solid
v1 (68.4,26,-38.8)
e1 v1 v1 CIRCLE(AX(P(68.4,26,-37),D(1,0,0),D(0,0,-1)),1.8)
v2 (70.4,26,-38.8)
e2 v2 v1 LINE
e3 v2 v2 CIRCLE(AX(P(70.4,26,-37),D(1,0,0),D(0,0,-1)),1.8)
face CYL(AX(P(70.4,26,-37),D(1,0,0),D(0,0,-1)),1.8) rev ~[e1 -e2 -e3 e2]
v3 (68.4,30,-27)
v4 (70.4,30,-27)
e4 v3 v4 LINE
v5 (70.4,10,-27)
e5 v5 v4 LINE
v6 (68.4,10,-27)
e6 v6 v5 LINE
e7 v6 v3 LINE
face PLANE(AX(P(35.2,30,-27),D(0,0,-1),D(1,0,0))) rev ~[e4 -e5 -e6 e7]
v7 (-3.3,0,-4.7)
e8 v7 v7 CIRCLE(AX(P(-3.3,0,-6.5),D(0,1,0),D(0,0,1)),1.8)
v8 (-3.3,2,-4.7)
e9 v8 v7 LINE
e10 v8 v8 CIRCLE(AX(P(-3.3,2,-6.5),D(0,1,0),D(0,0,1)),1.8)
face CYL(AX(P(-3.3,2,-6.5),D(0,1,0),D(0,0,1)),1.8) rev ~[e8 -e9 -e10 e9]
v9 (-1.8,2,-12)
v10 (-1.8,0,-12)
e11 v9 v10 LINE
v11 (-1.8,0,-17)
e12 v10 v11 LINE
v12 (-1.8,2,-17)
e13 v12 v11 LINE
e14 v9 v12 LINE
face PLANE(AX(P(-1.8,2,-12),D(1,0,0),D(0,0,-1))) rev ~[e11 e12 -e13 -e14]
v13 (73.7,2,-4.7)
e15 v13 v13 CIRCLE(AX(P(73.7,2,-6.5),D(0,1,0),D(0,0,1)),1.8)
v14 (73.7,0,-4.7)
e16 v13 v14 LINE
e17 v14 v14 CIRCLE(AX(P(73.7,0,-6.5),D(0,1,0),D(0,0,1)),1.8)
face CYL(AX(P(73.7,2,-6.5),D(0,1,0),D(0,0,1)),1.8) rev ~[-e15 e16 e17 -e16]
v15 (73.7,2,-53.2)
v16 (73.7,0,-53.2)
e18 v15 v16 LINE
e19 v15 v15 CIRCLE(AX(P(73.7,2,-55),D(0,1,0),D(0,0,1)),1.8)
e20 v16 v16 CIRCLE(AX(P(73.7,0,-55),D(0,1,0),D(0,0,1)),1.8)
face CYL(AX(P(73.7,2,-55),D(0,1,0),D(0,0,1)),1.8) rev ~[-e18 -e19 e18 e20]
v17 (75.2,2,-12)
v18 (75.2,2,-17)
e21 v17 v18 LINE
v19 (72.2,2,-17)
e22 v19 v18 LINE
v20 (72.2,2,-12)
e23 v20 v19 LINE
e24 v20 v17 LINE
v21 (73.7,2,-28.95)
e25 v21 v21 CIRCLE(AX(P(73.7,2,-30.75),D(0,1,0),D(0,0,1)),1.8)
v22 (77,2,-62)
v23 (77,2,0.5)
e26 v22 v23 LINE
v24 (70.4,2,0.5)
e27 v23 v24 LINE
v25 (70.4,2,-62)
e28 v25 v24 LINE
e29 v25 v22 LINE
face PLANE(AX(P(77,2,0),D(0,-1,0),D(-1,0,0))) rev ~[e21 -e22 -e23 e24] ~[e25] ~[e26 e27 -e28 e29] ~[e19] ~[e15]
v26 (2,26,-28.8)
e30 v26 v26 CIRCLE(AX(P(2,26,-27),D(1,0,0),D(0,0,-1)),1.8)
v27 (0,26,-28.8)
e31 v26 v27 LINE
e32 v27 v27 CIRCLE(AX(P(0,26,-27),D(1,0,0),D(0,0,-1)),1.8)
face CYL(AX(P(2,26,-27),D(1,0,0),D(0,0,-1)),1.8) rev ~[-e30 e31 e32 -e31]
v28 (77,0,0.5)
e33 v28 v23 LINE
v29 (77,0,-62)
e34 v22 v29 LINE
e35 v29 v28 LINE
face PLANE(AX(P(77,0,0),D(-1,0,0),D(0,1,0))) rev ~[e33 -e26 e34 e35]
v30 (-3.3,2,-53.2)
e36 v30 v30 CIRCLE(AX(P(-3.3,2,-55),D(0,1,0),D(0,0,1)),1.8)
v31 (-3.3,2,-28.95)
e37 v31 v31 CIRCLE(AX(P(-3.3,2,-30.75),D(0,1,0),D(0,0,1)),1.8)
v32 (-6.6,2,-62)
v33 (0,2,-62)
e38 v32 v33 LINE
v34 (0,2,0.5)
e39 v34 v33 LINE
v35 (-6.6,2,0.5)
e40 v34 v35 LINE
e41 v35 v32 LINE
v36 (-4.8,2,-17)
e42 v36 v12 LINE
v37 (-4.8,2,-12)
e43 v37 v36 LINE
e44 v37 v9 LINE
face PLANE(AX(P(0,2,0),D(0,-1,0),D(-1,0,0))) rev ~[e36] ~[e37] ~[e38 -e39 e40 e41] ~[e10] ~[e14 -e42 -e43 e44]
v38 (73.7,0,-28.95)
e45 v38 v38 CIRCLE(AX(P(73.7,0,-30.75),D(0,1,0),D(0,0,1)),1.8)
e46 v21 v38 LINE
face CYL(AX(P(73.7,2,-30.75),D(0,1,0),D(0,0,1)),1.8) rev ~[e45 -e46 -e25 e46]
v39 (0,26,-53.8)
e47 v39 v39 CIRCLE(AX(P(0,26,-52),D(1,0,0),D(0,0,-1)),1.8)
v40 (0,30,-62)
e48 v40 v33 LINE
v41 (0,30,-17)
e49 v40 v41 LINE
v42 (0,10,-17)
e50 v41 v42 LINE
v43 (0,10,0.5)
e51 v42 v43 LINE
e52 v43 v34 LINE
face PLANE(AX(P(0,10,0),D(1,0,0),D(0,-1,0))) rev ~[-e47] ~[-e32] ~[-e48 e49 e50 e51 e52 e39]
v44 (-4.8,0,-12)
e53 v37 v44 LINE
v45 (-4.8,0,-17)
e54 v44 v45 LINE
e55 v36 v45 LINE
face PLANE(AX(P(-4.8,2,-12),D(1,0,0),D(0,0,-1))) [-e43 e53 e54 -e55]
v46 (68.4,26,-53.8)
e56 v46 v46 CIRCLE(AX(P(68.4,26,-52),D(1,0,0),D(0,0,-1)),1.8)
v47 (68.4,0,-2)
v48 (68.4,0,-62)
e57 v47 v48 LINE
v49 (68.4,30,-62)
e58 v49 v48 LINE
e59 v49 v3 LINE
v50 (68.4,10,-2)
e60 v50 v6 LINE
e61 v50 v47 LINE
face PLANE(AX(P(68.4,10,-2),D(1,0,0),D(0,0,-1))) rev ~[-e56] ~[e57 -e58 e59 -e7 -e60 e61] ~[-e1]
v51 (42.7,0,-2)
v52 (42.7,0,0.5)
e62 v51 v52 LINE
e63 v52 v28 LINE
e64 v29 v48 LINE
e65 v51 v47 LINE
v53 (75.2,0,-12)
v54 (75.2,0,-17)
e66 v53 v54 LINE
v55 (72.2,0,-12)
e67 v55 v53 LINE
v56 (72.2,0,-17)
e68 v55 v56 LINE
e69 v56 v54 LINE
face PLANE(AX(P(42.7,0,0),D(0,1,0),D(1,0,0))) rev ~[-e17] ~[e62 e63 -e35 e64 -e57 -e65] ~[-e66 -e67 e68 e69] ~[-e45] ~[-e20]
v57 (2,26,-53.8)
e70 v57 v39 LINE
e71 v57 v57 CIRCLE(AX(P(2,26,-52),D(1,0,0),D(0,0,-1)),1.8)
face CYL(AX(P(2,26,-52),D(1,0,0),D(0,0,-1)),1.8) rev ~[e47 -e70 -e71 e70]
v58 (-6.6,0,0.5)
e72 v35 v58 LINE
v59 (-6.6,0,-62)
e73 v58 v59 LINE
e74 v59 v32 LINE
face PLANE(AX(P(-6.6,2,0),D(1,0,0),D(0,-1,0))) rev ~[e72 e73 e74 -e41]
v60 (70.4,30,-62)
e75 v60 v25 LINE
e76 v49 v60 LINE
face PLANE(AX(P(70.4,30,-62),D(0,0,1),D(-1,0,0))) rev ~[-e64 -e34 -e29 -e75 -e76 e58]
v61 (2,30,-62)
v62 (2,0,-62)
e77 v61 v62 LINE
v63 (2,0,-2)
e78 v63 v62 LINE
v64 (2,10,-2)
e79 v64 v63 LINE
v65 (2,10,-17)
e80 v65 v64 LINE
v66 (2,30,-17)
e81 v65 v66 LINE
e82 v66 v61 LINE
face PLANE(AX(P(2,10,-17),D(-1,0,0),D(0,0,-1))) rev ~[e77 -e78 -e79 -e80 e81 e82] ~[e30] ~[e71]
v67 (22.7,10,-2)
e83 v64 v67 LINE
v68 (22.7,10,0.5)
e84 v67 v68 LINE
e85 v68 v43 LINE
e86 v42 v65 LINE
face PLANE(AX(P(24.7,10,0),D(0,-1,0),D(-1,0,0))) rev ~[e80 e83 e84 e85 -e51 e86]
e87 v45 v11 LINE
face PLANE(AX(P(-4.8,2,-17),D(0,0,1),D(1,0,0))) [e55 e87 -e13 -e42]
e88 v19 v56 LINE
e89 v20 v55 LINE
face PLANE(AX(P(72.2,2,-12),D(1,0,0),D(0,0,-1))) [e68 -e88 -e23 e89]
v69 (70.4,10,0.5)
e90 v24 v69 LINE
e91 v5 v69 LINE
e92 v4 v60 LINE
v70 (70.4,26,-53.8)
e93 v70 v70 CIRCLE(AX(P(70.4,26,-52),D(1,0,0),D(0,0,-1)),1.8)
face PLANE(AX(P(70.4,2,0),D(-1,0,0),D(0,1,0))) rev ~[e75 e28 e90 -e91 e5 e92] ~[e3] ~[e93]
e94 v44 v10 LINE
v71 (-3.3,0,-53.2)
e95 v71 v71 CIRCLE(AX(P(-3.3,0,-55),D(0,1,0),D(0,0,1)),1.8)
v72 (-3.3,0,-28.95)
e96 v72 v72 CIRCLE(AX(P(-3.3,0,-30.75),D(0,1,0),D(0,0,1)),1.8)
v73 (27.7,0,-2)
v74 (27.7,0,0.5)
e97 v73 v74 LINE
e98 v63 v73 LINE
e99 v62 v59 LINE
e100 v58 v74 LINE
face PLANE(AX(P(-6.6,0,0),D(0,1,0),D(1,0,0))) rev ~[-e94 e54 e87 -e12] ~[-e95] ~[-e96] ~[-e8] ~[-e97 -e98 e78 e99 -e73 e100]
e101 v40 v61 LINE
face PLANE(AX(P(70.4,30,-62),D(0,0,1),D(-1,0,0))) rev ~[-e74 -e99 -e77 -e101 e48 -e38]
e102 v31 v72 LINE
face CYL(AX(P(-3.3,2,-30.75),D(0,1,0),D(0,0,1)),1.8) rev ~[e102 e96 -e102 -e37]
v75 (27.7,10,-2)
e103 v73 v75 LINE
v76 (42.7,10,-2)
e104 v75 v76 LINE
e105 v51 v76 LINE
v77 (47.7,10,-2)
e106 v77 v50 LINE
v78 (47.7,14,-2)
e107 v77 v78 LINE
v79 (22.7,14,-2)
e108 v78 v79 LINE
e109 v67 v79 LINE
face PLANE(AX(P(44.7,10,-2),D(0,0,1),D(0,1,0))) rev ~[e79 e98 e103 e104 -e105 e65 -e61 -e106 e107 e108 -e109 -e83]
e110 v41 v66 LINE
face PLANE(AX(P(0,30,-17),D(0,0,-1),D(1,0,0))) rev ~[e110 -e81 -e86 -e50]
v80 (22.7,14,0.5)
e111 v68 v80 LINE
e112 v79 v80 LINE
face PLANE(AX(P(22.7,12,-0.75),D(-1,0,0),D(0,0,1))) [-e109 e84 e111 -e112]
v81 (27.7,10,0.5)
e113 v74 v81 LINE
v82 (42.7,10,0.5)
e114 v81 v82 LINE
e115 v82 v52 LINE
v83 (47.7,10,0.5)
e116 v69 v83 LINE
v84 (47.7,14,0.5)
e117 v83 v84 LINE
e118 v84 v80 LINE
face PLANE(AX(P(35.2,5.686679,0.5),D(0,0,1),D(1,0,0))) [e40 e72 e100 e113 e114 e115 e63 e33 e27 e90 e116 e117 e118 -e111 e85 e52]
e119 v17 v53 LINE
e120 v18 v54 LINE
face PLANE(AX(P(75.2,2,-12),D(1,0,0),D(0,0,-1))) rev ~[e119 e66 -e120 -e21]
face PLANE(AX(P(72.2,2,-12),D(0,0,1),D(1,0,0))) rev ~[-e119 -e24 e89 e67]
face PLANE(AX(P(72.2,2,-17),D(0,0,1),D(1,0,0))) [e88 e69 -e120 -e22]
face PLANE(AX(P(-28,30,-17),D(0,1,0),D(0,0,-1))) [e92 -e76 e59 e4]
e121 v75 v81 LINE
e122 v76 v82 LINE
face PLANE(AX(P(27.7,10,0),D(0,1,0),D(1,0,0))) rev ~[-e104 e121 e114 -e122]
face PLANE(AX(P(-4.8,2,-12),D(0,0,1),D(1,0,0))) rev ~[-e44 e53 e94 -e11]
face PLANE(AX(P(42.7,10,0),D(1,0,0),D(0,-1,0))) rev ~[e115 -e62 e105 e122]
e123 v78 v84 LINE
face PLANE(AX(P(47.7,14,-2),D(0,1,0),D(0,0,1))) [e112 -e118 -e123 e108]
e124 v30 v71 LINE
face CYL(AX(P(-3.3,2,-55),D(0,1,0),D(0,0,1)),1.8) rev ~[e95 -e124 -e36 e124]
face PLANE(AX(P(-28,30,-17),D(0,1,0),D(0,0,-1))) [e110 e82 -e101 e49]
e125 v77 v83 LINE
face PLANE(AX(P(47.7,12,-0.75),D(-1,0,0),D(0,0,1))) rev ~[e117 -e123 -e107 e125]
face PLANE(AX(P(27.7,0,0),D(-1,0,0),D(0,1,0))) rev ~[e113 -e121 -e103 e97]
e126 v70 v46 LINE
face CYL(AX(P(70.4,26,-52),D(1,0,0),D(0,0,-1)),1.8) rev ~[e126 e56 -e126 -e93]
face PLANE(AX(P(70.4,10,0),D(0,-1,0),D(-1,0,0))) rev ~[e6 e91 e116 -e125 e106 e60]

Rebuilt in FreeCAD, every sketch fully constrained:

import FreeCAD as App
import Part
import Sketcher

doc = App.newDocument("Part")
body = doc.addObject("PartDesign::Body", "Body")

# Sketch on XZ plane
sketch1 = body.newObject("Sketcher::SketchObject", "Sketch")
sketch1.AttachmentSupport = (doc.getObject("XZ_Plane"), [""])
sketch1.MapMode = "FlatFace"
sketch1.addGeometry([
    Part.LineSegment(App.Vector(0, -2, 0), App.Vector(0, 0, 0)),
    Part.LineSegment(App.Vector(0, 0, 0), App.Vector(70.4, 0, 0)),
    Part.LineSegment(App.Vector(70.4, 0, 0), App.Vector(70.4, -2, 0)),
    Part.LineSegment(App.Vector(70.4, -2, 0), App.Vector(0, -2, 0)),
], False)
sketch1.addConstraint([
    Sketcher.Constraint("Coincident", 0, 2, 1, 1),
    Sketcher.Constraint("Coincident", 1, 2, 2, 1),
    Sketcher.Constraint("Coincident", 2, 2, 3, 1),
    Sketcher.Constraint("Coincident", 3, 2, 0, 1),
    Sketcher.Constraint("Vertical", 0),
    Sketcher.Constraint("Horizontal", 1),
    Sketcher.Constraint("Vertical", 2),
    Sketcher.Constraint("Horizontal", 3),
    Sketcher.Constraint("Coincident", 0, 2, -1, 1),
    Sketcher.Constraint("DistanceY", 0, 1, 0, 2, 2.0),
    Sketcher.Constraint("DistanceX", 1, 1, 1, 2, 70.4),
])
pad1 = body.newObject("PartDesign::Pad", "Pad")
pad1.Profile = sketch1
pad1.Length = 10
pad1.Reversed = True

# Sketch on XZ plane
sketch2 = body.newObject("Sketcher::SketchObject", "Sketch001")
sketch2.AttachmentSupport = (doc.getObject("XZ_Plane"), [""])
sketch2.MapMode = "FlatFace"
sketch2.AttachmentOffset = App.Placement(App.Vector(0, 0, -10), App.Rotation())
sketch2.addGeometry([
    Part.LineSegment(App.Vector(0, -57, 0), App.Vector(0, -2, 0)),  # 0
    Part.LineSegment(App.Vector(0, -2, 0), App.Vector(2, -2, 0)),  # 1
    Part.LineSegment(App.Vector(2, -2, 0), App.Vector(2, -57, 0)),  # 2
    Part.LineSegment(App.Vector(2, -57, 0), App.Vector(0, -57, 0)),  # 3
    Part.LineSegment(App.Vector(68.4, -57, 0), App.Vector(68.4, -2, 0)),  # 4
    Part.LineSegment(App.Vector(68.4, -2, 0), App.Vector(70.4, -2, 0)),  # 5
    Part.LineSegment(App.Vector(70.4, -2, 0), App.Vector(70.4, -57, 0)),  # 6
    Part.LineSegment(App.Vector(70.4, -57, 0), App.Vector(68.4, -57, 0)),  # 7
], False)
sketch2.addConstraint([
    Sketcher.Constraint("Coincident", 0, 2, 1, 1),
    Sketcher.Constraint("Coincident", 1, 2, 2, 1),
    Sketcher.Constraint("Coincident", 2, 2, 3, 1),
    Sketcher.Constraint("Coincident", 3, 2, 0, 1),
    Sketcher.Constraint("Coincident", 4, 2, 5, 1),
    Sketcher.Constraint("Coincident", 5, 2, 6, 1),
    Sketcher.Constraint("Coincident", 6, 2, 7, 1),
    Sketcher.Constraint("Coincident", 7, 2, 4, 1),
    Sketcher.Constraint("Vertical", 0),
    Sketcher.Constraint("Horizontal", 1),
    Sketcher.Constraint("Vertical", 2),
    Sketcher.Constraint("Horizontal", 3),
    Sketcher.Constraint("Vertical", 4),
    Sketcher.Constraint("Horizontal", 5),
    Sketcher.Constraint("Vertical", 6),
    Sketcher.Constraint("Horizontal", 7),
    Sketcher.Constraint("PointOnObject", 0, 2, -2),
    Sketcher.Constraint("Horizontal", 1, 2, 4, 2),
    Sketcher.Constraint("Horizontal", 3, 2, 6, 2),
    Sketcher.Constraint("Equal", 3, 5),
    Sketcher.Constraint("DistanceX", 1, 1, 1, 2, 2.0),
    Sketcher.Constraint("DistanceY", 0, 1, 0, 2, 55.0),
    Sketcher.Constraint("DistanceY", 0, 2, -1, 1, 2.0),
    Sketcher.Constraint("DistanceX", -1, 1, 4, 2, 68.4),
])
pad2 = body.newObject("PartDesign::Pad", "Pad001")
pad2.Profile = sketch2
pad2.Length = 10

# Sketch on XY plane
sketch3 = body.newObject("Sketcher::SketchObject", "Sketch002")
sketch3.AttachmentSupport = (doc.getObject("XY_Plane"), [""])
sketch3.MapMode = "FlatFace"
sketch3.addGeometry([
    Part.LineSegment(App.Vector(25.7, 13, 0), App.Vector(25.7, 10, 0)),
    Part.LineSegment(App.Vector(25.7, 10, 0), App.Vector(44.7, 10, 0)),
    Part.LineSegment(App.Vector(44.7, 10, 0), App.Vector(44.7, 13, 0)),
    Part.LineSegment(App.Vector(44.7, 13, 0), App.Vector(25.7, 13, 0)),
], False)
sketch3.addConstraint([
    Sketcher.Constraint("Coincident", 0, 2, 1, 1),
    Sketcher.Constraint("Coincident", 1, 2, 2, 1),
    Sketcher.Constraint("Coincident", 2, 2, 3, 1),
    Sketcher.Constraint("Coincident", 3, 2, 0, 1),
    Sketcher.Constraint("Vertical", 0),
    Sketcher.Constraint("Horizontal", 1),
    Sketcher.Constraint("Vertical", 2),
    Sketcher.Constraint("Horizontal", 3),
    Sketcher.Constraint("DistanceX", 1, 1, 1, 2, 19.0),
    Sketcher.Constraint("DistanceY", 0, 2, 0, 1, 3.0),
    Sketcher.Constraint("DistanceY", -1, 1, 0, 2, 10.0),
    Sketcher.Constraint("DistanceX", -1, 1, 0, 2, 25.7),
])
pad3 = body.newObject("PartDesign::Pad", "Pad002")
pad3.Profile = sketch3
pad3.Length = 2
pad3.Reversed = True

# Sketch on XY plane
sketch4 = body.newObject("Sketcher::SketchObject", "Sketch003")
sketch4.AttachmentSupport = (doc.getObject("XY_Plane"), [""])
sketch4.MapMode = "FlatFace"
sketch4.addGeometry([
    Part.LineSegment(App.Vector(28, 10, 0), App.Vector(28, 0, 0)),
    Part.LineSegment(App.Vector(28, 0, 0), App.Vector(43, 0, 0)),
    Part.LineSegment(App.Vector(43, 0, 0), App.Vector(43, 10, 0)),
    Part.LineSegment(App.Vector(43, 10, 0), App.Vector(28, 10, 0)),
], False)
sketch4.addConstraint([
    Sketcher.Constraint("Coincident", 0, 2, 1, 1),
    Sketcher.Constraint("Coincident", 1, 2, 2, 1),
    Sketcher.Constraint("Coincident", 2, 2, 3, 1),
    Sketcher.Constraint("Coincident", 3, 2, 0, 1),
    Sketcher.Constraint("Vertical", 0),
    Sketcher.Constraint("Horizontal", 1),
    Sketcher.Constraint("Vertical", 2),
    Sketcher.Constraint("Horizontal", 3),
    Sketcher.Constraint("PointOnObject", 0, 2, -1),
    Sketcher.Constraint("DistanceX", 1, 1, 1, 2, 15.0),
    Sketcher.Constraint("DistanceY", 0, 2, 0, 1, 10.0),
    Sketcher.Constraint("DistanceX", -1, 1, 0, 2, 27.7),
])
pocket1 = body.newObject("PartDesign::Pocket", "Pocket")
pocket1.Profile = sketch4
pocket1.Length = 2

# Sketch on YZ plane
sketch5 = body.newObject("Sketcher::SketchObject", "Sketch004")
sketch5.AttachmentSupport = (doc.getObject("YZ_Plane"), [""])
sketch5.MapMode = "FlatFace"
sketch5.AttachmentOffset = App.Placement(App.Vector(0, 0, 25.7), App.Rotation())
sketch5.addGeometry([
    Part.LineSegment(App.Vector(13, -2, 0), App.Vector(10, -2, 0)),
    Part.LineSegment(App.Vector(10, -2, 0), App.Vector(10, 0, 0)),
    Part.LineSegment(App.Vector(10, 0, 0), App.Vector(13, 0, 0)),
    Part.LineSegment(App.Vector(13, 0, 0), App.Vector(13, -2, 0)),
], False)
sketch5.addConstraint([
    Sketcher.Constraint("Coincident", 0, 2, 1, 1),
    Sketcher.Constraint("Coincident", 1, 2, 2, 1),
    Sketcher.Constraint("Coincident", 2, 2, 3, 1),
    Sketcher.Constraint("Coincident", 3, 2, 0, 1),
    Sketcher.Constraint("Horizontal", 0),
    Sketcher.Constraint("Vertical", 1),
    Sketcher.Constraint("Horizontal", 2),
    Sketcher.Constraint("Vertical", 3),
    Sketcher.Constraint("PointOnObject", 1, 2, -1),
    Sketcher.Constraint("DistanceX", 0, 2, 0, 1, 3.0),
    Sketcher.Constraint("DistanceY", 1, 1, 1, 2, 2.0),
    Sketcher.Constraint("DistanceX", -1, 1, 0, 2, 10.0),
])
pad4 = body.newObject("PartDesign::Pad", "Pad003")
pad4.Profile = sketch5
pad4.Length = 1
pad4.Reversed = True

# Sketch on YZ plane
sketch6 = body.newObject("Sketcher::SketchObject", "Sketch005")
sketch6.AttachmentSupport = (doc.getObject("YZ_Plane"), [""])
sketch6.MapMode = "FlatFace"
sketch6.AttachmentOffset = App.Placement(App.Vector(0, 0, 44.7), App.Rotation())
sketch6.addGeometry([
    Part.LineSegment(App.Vector(13, 0, 0), App.Vector(10, 0, 0)),
    Part.LineSegment(App.Vector(10, 0, 0), App.Vector(10, -2, 0)),
    Part.LineSegment(App.Vector(10, -2, 0), App.Vector(13, -2, 0)),
    Part.LineSegment(App.Vector(13, -2, 0), App.Vector(13, 0, 0)),
], False)
sketch6.addConstraint([
    Sketcher.Constraint("Coincident", 0, 2, 1, 1),
    Sketcher.Constraint("Coincident", 1, 2, 2, 1),
    Sketcher.Constraint("Coincident", 2, 2, 3, 1),
    Sketcher.Constraint("Coincident", 3, 2, 0, 1),
    Sketcher.Constraint("Horizontal", 0),
    Sketcher.Constraint("Vertical", 1),
    Sketcher.Constraint("Horizontal", 2),
    Sketcher.Constraint("Vertical", 3),
    Sketcher.Constraint("PointOnObject", 0, 2, -1),
    Sketcher.Constraint("DistanceX", 0, 2, 0, 1, 3.0),
    Sketcher.Constraint("DistanceY", 1, 2, 1, 1, 2.0),
    Sketcher.Constraint("DistanceX", -1, 1, 0, 2, 10.0),
])
pad5 = body.newObject("PartDesign::Pad", "Pad004")
pad5.Profile = sketch6
pad5.Length = 1

# Sketch on YZ plane
sketch7 = body.newObject("Sketcher::SketchObject", "Sketch006")
sketch7.AttachmentSupport = (doc.getObject("YZ_Plane"), [""])
sketch7.MapMode = "FlatFace"
sketch7.addGeometry([
    Part.LineSegment(App.Vector(2, -57, 0), App.Vector(0, -57, 0)),
    Part.LineSegment(App.Vector(0, -57, 0), App.Vector(0, 0, 0)),
    Part.LineSegment(App.Vector(0, 0, 0), App.Vector(2, 0, 0)),
    Part.LineSegment(App.Vector(2, 0, 0), App.Vector(2, -57, 0)),
], False)
sketch7.addConstraint([
    Sketcher.Constraint("Coincident", 0, 2, 1, 1),
    Sketcher.Constraint("Coincident", 1, 2, 2, 1),
    Sketcher.Constraint("Coincident", 2, 2, 3, 1),
    Sketcher.Constraint("Coincident", 3, 2, 0, 1),
    Sketcher.Constraint("Horizontal", 0),
    Sketcher.Constraint("Vertical", 1),
    Sketcher.Constraint("Horizontal", 2),
    Sketcher.Constraint("Vertical", 3),
    Sketcher.Constraint("Coincident", 1, 2, -1, 1),
    Sketcher.Constraint("DistanceX", 0, 2, 0, 1, 2.0),
    Sketcher.Constraint("DistanceY", 1, 1, 1, 2, 57.0),
])
pad6 = body.newObject("PartDesign::Pad", "Pad005")
pad6.Profile = sketch7
pad6.Length = 6.6
pad6.Reversed = True

# Sketch on YZ plane
sketch8 = body.newObject("Sketcher::SketchObject", "Sketch007")
sketch8.AttachmentSupport = (doc.getObject("YZ_Plane"), [""])
sketch8.MapMode = "FlatFace"
sketch8.AttachmentOffset = App.Placement(App.Vector(0, 0, 70.4), App.Rotation())
sketch8.addGeometry([
    Part.LineSegment(App.Vector(2, 0, 0), App.Vector(0, 0, 0)),
    Part.LineSegment(App.Vector(0, 0, 0), App.Vector(0, -57, 0)),
    Part.LineSegment(App.Vector(0, -57, 0), App.Vector(2, -57, 0)),
    Part.LineSegment(App.Vector(2, -57, 0), App.Vector(2, 0, 0)),
], False)
sketch8.addConstraint([
    Sketcher.Constraint("Coincident", 0, 2, 1, 1),
    Sketcher.Constraint("Coincident", 1, 2, 2, 1),
    Sketcher.Constraint("Coincident", 2, 2, 3, 1),
    Sketcher.Constraint("Coincident", 3, 2, 0, 1),
    Sketcher.Constraint("Horizontal", 0),
    Sketcher.Constraint("Vertical", 1),
    Sketcher.Constraint("Horizontal", 2),
    Sketcher.Constraint("Vertical", 3),
    Sketcher.Constraint("Coincident", 0, 2, -1, 1),
    Sketcher.Constraint("DistanceX", 0, 2, 0, 1, 2.0),
    Sketcher.Constraint("DistanceY", 1, 2, 1, 1, 57.0),
])
pad7 = body.newObject("PartDesign::Pad", "Pad006")
pad7.Profile = sketch8
pad7.Length = 6.6

# Sketch on XY plane
sketch9 = body.newObject("Sketcher::SketchObject", "Sketch008")
sketch9.AttachmentSupport = (doc.getObject("XY_Plane"), [""])
sketch9.MapMode = "FlatFace"
sketch9.AttachmentOffset = App.Placement(App.Vector(0, 0, -57), App.Rotation())
sketch9.addGeometry([
    Part.LineSegment(App.Vector(2, 10, 0), App.Vector(2, 0, 0)),  # 0
    Part.LineSegment(App.Vector(2, 0, 0), App.Vector(-6.6, 0, 0)),  # 1
    Part.LineSegment(App.Vector(-6.6, 0, 0), App.Vector(-6.6, 2, 0)),  # 2
    Part.LineSegment(App.Vector(-6.6, 2, 0), App.Vector(0, 2, 0)),  # 3
    Part.LineSegment(App.Vector(0, 2, 0), App.Vector(0, 10, 0)),  # 4
    Part.LineSegment(App.Vector(0, 10, 0), App.Vector(2, 10, 0)),  # 5
    Part.LineSegment(App.Vector(77, 0, 0), App.Vector(68.4, 0, 0)),  # 6
    Part.LineSegment(App.Vector(68.4, 0, 0), App.Vector(68.4, 10, 0)),  # 7
    Part.LineSegment(App.Vector(68.4, 10, 0), App.Vector(70.4, 10, 0)),  # 8
    Part.LineSegment(App.Vector(70.4, 10, 0), App.Vector(70.4, 2, 0)),  # 9
    Part.LineSegment(App.Vector(70.4, 2, 0), App.Vector(77, 2, 0)),  # 10
    Part.LineSegment(App.Vector(77, 2, 0), App.Vector(77, 0, 0)),  # 11
], False)
sketch9.addConstraint([
    Sketcher.Constraint("Coincident", 0, 2, 1, 1),
    Sketcher.Constraint("Coincident", 1, 2, 2, 1),
    Sketcher.Constraint("Coincident", 2, 2, 3, 1),
    Sketcher.Constraint("Coincident", 3, 2, 4, 1),
    Sketcher.Constraint("Coincident", 4, 2, 5, 1),
    Sketcher.Constraint("Coincident", 5, 2, 0, 1),
    Sketcher.Constraint("Coincident", 6, 2, 7, 1),
    Sketcher.Constraint("Coincident", 7, 2, 8, 1),
    Sketcher.Constraint("Coincident", 8, 2, 9, 1),
    Sketcher.Constraint("Coincident", 9, 2, 10, 1),
    Sketcher.Constraint("Coincident", 10, 2, 11, 1),
    Sketcher.Constraint("Coincident", 11, 2, 6, 1),
    Sketcher.Constraint("Vertical", 0),
    Sketcher.Constraint("Horizontal", 1),
    Sketcher.Constraint("Vertical", 2),
    Sketcher.Constraint("Horizontal", 3),
    Sketcher.Constraint("Vertical", 4),
    Sketcher.Constraint("Horizontal", 5),
    Sketcher.Constraint("Horizontal", 6),
    Sketcher.Constraint("Vertical", 7),
    Sketcher.Constraint("Horizontal", 8),
    Sketcher.Constraint("Vertical", 9),
    Sketcher.Constraint("Horizontal", 10),
    Sketcher.Constraint("Vertical", 11),
    Sketcher.Constraint("PointOnObject", 0, 2, -1),
    Sketcher.Constraint("PointOnObject", 3, 2, -2),
    Sketcher.Constraint("PointOnObject", 6, 2, -1),
    Sketcher.Constraint("Horizontal", 5, 2, 7, 2),
    Sketcher.Constraint("Horizontal", 3, 2, 9, 2),
    Sketcher.Constraint("Equal", 1, 6),
    Sketcher.Constraint("Equal", 5, 8),
    Sketcher.Constraint("Equal", 8, 2),
    Sketcher.Constraint("DistanceX", 5, 1, 5, 2, 2.0),
    Sketcher.Constraint("DistanceY", 0, 2, 0, 1, 10.0),
    Sketcher.Constraint("DistanceX", 1, 2, 1, 1, 8.6),
    Sketcher.Constraint("DistanceX", -1, 1, 10, 2, 77.0),
])
pad8 = body.newObject("PartDesign::Pad", "Pad007")
pad8.Profile = sketch9
pad8.Length = 5
pad8.Reversed = True

# Sketch on XZ plane
sketch10 = body.newObject("Sketcher::SketchObject", "Sketch009")
sketch10.AttachmentSupport = (doc.getObject("XZ_Plane"), [""])
sketch10.MapMode = "FlatFace"
sketch10.AttachmentOffset = App.Placement(App.Vector(0, 0, -10), App.Rotation())
sketch10.addGeometry([
    Part.LineSegment(App.Vector(0, -62, 0), App.Vector(0, -17, 0)),  # 0
    Part.LineSegment(App.Vector(0, -17, 0), App.Vector(2, -17, 0)),  # 1
    Part.LineSegment(App.Vector(2, -17, 0), App.Vector(2, -62, 0)),  # 2
    Part.LineSegment(App.Vector(2, -62, 0), App.Vector(0, -62, 0)),  # 3
    Part.LineSegment(App.Vector(68.4, -27, 0), App.Vector(70.4, -27, 0)),  # 4
    Part.LineSegment(App.Vector(70.4, -27, 0), App.Vector(70.4, -62, 0)),  # 5
    Part.LineSegment(App.Vector(70.4, -62, 0), App.Vector(68.4, -62, 0)),  # 6
    Part.LineSegment(App.Vector(68.4, -62, 0), App.Vector(68.4, -27, 0)),  # 7
], False)
sketch10.addConstraint([
    Sketcher.Constraint("Coincident", 0, 2, 1, 1),
    Sketcher.Constraint("Coincident", 1, 2, 2, 1),
    Sketcher.Constraint("Coincident", 2, 2, 3, 1),
    Sketcher.Constraint("Coincident", 3, 2, 0, 1),
    Sketcher.Constraint("Coincident", 4, 2, 5, 1),
    Sketcher.Constraint("Coincident", 5, 2, 6, 1),
    Sketcher.Constraint("Coincident", 6, 2, 7, 1),
    Sketcher.Constraint("Coincident", 7, 2, 4, 1),
    Sketcher.Constraint("Vertical", 0),
    Sketcher.Constraint("Horizontal", 1),
    Sketcher.Constraint("Vertical", 2),
    Sketcher.Constraint("Horizontal", 3),
    Sketcher.Constraint("Horizontal", 4),
    Sketcher.Constraint("Vertical", 5),
    Sketcher.Constraint("Horizontal", 6),
    Sketcher.Constraint("Vertical", 7),
    Sketcher.Constraint("PointOnObject", 0, 2, -2),
    Sketcher.Constraint("Horizontal", 3, 2, 5, 2),
    Sketcher.Constraint("Equal", 3, 4),
    Sketcher.Constraint("DistanceX", 1, 1, 1, 2, 2.0),
    Sketcher.Constraint("DistanceY", 0, 1, 0, 2, 45.0),
    Sketcher.Constraint("DistanceY", 5, 2, 5, 1, 35.0),
    Sketcher.Constraint("DistanceY", 0, 2, -1, 1, 17.0),
    Sketcher.Constraint("DistanceX", -1, 1, 4, 2, 70.4),
])
pad9 = body.newObject("PartDesign::Pad", "Pad008")
pad9.Profile = sketch10
pad9.Length = 20
pad9.Reversed = True

# Sketch on XZ plane
sketch11 = body.newObject("Sketcher::SketchObject", "Sketch010")
sketch11.AttachmentSupport = (doc.getObject("XZ_Plane"), [""])
sketch11.MapMode = "FlatFace"
sketch11.AttachmentOffset = App.Placement(App.Vector(0, 0, -30), App.Rotation())
sketch11.addGeometry([
    Part.LineSegment(App.Vector(0, -17, 0), App.Vector(35, -17, 0)),  # 0
    Part.LineSegment(App.Vector(35, -17, 0), App.Vector(35, -27, 0)),  # 1
    Part.LineSegment(App.Vector(35, -27, 0), App.Vector(70, -27, 0)),  # 2
    Part.LineSegment(App.Vector(70, -27, 0), App.Vector(70, -62, 0)),  # 3
    Part.LineSegment(App.Vector(70, -62, 0), App.Vector(0, -62, 0)),  # 4
    Part.LineSegment(App.Vector(0, -62, 0), App.Vector(0, -17, 0)),  # 5
], False)
sketch11.addConstraint([
    Sketcher.Constraint("Coincident", 0, 2, 1, 1),
    Sketcher.Constraint("Coincident", 1, 2, 2, 1),
    Sketcher.Constraint("Coincident", 2, 2, 3, 1),
    Sketcher.Constraint("Coincident", 3, 2, 4, 1),
    Sketcher.Constraint("Coincident", 4, 2, 5, 1),
    Sketcher.Constraint("Coincident", 5, 2, 0, 1),
    Sketcher.Constraint("Horizontal", 0),
    Sketcher.Constraint("Vertical", 1),
    Sketcher.Constraint("Horizontal", 2),
    Sketcher.Constraint("Vertical", 3),
    Sketcher.Constraint("Horizontal", 4),
    Sketcher.Constraint("Vertical", 5),
    Sketcher.Constraint("PointOnObject", 4, 2, -2),
    Sketcher.Constraint("Equal", 0, 2),
    Sketcher.Constraint("DistanceY", 1, 2, 1, 1, 10.0),
    Sketcher.Constraint("DistanceY", 3, 2, 3, 1, 35.0),
    Sketcher.Constraint("DistanceX", 0, 1, 0, 2, 35.2),
    Sketcher.Constraint("DistanceY", 0, 2, -1, 1, 17.0),
])
pad10 = body.newObject("PartDesign::Pad", "Pad009")
pad10.Profile = sketch11
pad10.Length = 3
pad10.Reversed = True

# Sketch on XZ plane
sketch12 = body.newObject("Sketcher::SketchObject", "Sketch011")
sketch12.AttachmentSupport = (doc.getObject("XZ_Plane"), [""])
sketch12.MapMode = "FlatFace"
sketch12.AttachmentOffset = App.Placement(App.Vector(0, 0, -33), App.Rotation())
sketch12.addGeometry([
    Part.LineSegment(App.Vector(11.4, -55.5, 0), App.Vector(11.4, -46.5, 0)),  # 0
    Part.LineSegment(App.Vector(11.4, -46.5, 0), App.Vector(11.9, -46.5, 0)),  # 1
    Part.LineSegment(App.Vector(11.9, -46.5, 0), App.Vector(11.9, -55.5, 0)),  # 2
    Part.LineSegment(App.Vector(11.9, -55.5, 0), App.Vector(11.4, -55.5, 0)),  # 3
    Part.LineSegment(App.Vector(11.4, -42.5, 0), App.Vector(11.4, -33.5, 0)),  # 4
    Part.LineSegment(App.Vector(11.4, -33.5, 0), App.Vector(11.9, -33.5, 0)),  # 5
    Part.LineSegment(App.Vector(11.9, -33.5, 0), App.Vector(11.9, -42.5, 0)),  # 6
    Part.LineSegment(App.Vector(11.9, -42.5, 0), App.Vector(11.4, -42.5, 0)),  # 7
    Part.LineSegment(App.Vector(11.4, -30, 0), App.Vector(11.4, -21, 0)),  # 8
    Part.LineSegment(App.Vector(11.4, -21, 0), App.Vector(11.9, -21, 0)),  # 9
    Part.LineSegment(App.Vector(11.9, -21, 0), App.Vector(11.9, -30, 0)),  # 10
    Part.LineSegment(App.Vector(11.9, -30, 0), App.Vector(11.4, -30, 0)),  # 11
    Part.LineSegment(App.Vector(58, -55.5, 0), App.Vector(58, -46.5, 0)),  # 12
    Part.LineSegment(App.Vector(58, -46.5, 0), App.Vector(58.5, -46.5, 0)),  # 13
    Part.LineSegment(App.Vector(58.5, -46.5, 0), App.Vector(58.5, -55.5, 0)),  # 14
    Part.LineSegment(App.Vector(58.5, -55.5, 0), App.Vector(58, -55.5, 0)),  # 15
    Part.LineSegment(App.Vector(58, -42.5, 0), App.Vector(58, -33.5, 0)),  # 16
    Part.LineSegment(App.Vector(58, -33.5, 0), App.Vector(58.5, -33.5, 0)),  # 17
    Part.LineSegment(App.Vector(58.5, -33.5, 0), App.Vector(58.5, -42.5, 0)),  # 18
    Part.LineSegment(App.Vector(58.5, -42.5, 0), App.Vector(58, -42.5, 0)),  # 19
], False)
sketch12.addConstraint([
    Sketcher.Constraint("Coincident", 0, 2, 1, 1),
    Sketcher.Constraint("Coincident", 1, 2, 2, 1),
    Sketcher.Constraint("Coincident", 2, 2, 3, 1),
    Sketcher.Constraint("Coincident", 3, 2, 0, 1),
    Sketcher.Constraint("Coincident", 4, 2, 5, 1),
    Sketcher.Constraint("Coincident", 5, 2, 6, 1),
    Sketcher.Constraint("Coincident", 6, 2, 7, 1),
    Sketcher.Constraint("Coincident", 7, 2, 4, 1),
    Sketcher.Constraint("Coincident", 8, 2, 9, 1),
    Sketcher.Constraint("Coincident", 9, 2, 10, 1),
    Sketcher.Constraint("Coincident", 10, 2, 11, 1),
    Sketcher.Constraint("Coincident", 11, 2, 8, 1),
    Sketcher.Constraint("Coincident", 12, 2, 13, 1),
    Sketcher.Constraint("Coincident", 13, 2, 14, 1),
    Sketcher.Constraint("Coincident", 14, 2, 15, 1),
    Sketcher.Constraint("Coincident", 15, 2, 12, 1),
    Sketcher.Constraint("Coincident", 16, 2, 17, 1),
    Sketcher.Constraint("Coincident", 17, 2, 18, 1),
    Sketcher.Constraint("Coincident", 18, 2, 19, 1),
    Sketcher.Constraint("Coincident", 19, 2, 16, 1),
    Sketcher.Constraint("Vertical", 0),
    Sketcher.Constraint("Horizontal", 1),
    Sketcher.Constraint("Vertical", 2),
    Sketcher.Constraint("Horizontal", 3),
    Sketcher.Constraint("Vertical", 4),
    Sketcher.Constraint("Horizontal", 5),
    Sketcher.Constraint("Vertical", 6),
    Sketcher.Constraint("Horizontal", 7),
    Sketcher.Constraint("Vertical", 8),
    Sketcher.Constraint("Horizontal", 9),
    Sketcher.Constraint("Vertical", 10),
    Sketcher.Constraint("Horizontal", 11),
    Sketcher.Constraint("Vertical", 12),
    Sketcher.Constraint("Horizontal", 13),
    Sketcher.Constraint("Vertical", 14),
    Sketcher.Constraint("Horizontal", 15),
    Sketcher.Constraint("Vertical", 16),
    Sketcher.Constraint("Horizontal", 17),
    Sketcher.Constraint("Vertical", 18),
    Sketcher.Constraint("Horizontal", 19),
    Sketcher.Constraint("Horizontal", 1, 2, 12, 2),
    Sketcher.Constraint("Horizontal", 3, 2, 14, 2),
    Sketcher.Constraint("Horizontal", 5, 2, 16, 2),
    Sketcher.Constraint("Horizontal", 7, 2, 18, 2),
    Sketcher.Constraint("Vertical", 3, 2, 4, 2),
    Sketcher.Constraint("Vertical", 2, 2, 5, 2),
    Sketcher.Constraint("Vertical", 7, 2, 8, 2),
    Sketcher.Constraint("Vertical", 6, 2, 9, 2),
    Sketcher.Constraint("Vertical", 15, 2, 16, 2),
    Sketcher.Constraint("Vertical", 14, 2, 17, 2),
    Sketcher.Constraint("Equal", 11, 13),
    Sketcher.Constraint("Equal", 2, 4),
    Sketcher.Constraint("Equal", 6, 8),
    Sketcher.Constraint("DistanceY", 0, 1, 0, 2, 9.0),
    Sketcher.Constraint("DistanceX", 1, 1, 1, 2, 0.5),
    Sketcher.Constraint("DistanceY", 8, 2, -1, 1, 21.0),
    Sketcher.Constraint("DistanceY", 0, 2, 4, 2, 13.0),
    Sketcher.Constraint("DistanceX", 1, 2, 12, 2, 46.0),
    Sketcher.Constraint("DistanceY", 0, 2, -1, 1, 46.5),
    Sketcher.Constraint("DistanceX", -1, 1, 0, 2, 11.45),
])
pocket2 = body.newObject("PartDesign::Pocket", "Pocket001")
pocket2.Profile = sketch12
pocket2.Length = 3
pocket2.Reversed = True

# Sketch on XZ plane
sketch13 = body.newObject("Sketcher::SketchObject", "Sketch012")
sketch13.AttachmentSupport = (doc.getObject("XZ_Plane"), [""])
sketch13.MapMode = "FlatFace"
sketch13.AttachmentOffset = App.Placement(App.Vector(0, 0, -33), App.Rotation())
sketch13.addGeometry([
    Part.LineSegment(App.Vector(16, -62, 0), App.Vector(16, -17, 0)),
    Part.LineSegment(App.Vector(16, -17, 0), App.Vector(54, -17, 0)),
    Part.LineSegment(App.Vector(54, -17, 0), App.Vector(54, -62, 0)),
    Part.LineSegment(App.Vector(54, -62, 0), App.Vector(16, -62, 0)),
], False)
sketch13.addConstraint([
    Sketcher.Constraint("Coincident", 0, 2, 1, 1),
    Sketcher.Constraint("Coincident", 1, 2, 2, 1),
    Sketcher.Constraint("Coincident", 2, 2, 3, 1),
    Sketcher.Constraint("Coincident", 3, 2, 0, 1),
    Sketcher.Constraint("Vertical", 0),
    Sketcher.Constraint("Horizontal", 1),
    Sketcher.Constraint("Vertical", 2),
    Sketcher.Constraint("Horizontal", 3),
    Sketcher.Constraint("DistanceY", 0, 1, 0, 2, 45.0),
    Sketcher.Constraint("DistanceX", 1, 1, 1, 2, 38.4),
    Sketcher.Constraint("DistanceX", -1, 1, 0, 2, 16.0),
    Sketcher.Constraint("DistanceY", 0, 2, -1, 1, 17.0),
])
pocket3 = body.newObject("PartDesign::Pocket", "Pocket002")
pocket3.Profile = sketch13
pocket3.Length = 3
pocket3.Reversed = True

# Sketch on XY plane
sketch14 = body.newObject("Sketcher::SketchObject", "Sketch013")
sketch14.AttachmentSupport = (doc.getObject("XY_Plane"), [""])
sketch14.MapMode = "FlatFace"
sketch14.addGeometry([
    Part.LineSegment(App.Vector(-6.6, 0, 0), App.Vector(27.7, 0, 0)),  # 0
    Part.LineSegment(App.Vector(27.7, 0, 0), App.Vector(27.7, 10, 0)),  # 1
    Part.LineSegment(App.Vector(27.7, 10, 0), App.Vector(42.7, 10, 0)),  # 2
    Part.LineSegment(App.Vector(42.7, 10, 0), App.Vector(42.7, 0, 0)),  # 3
    Part.LineSegment(App.Vector(42.7, 0, 0), App.Vector(77, 0, 0)),  # 4
    Part.LineSegment(App.Vector(77, 0, 0), App.Vector(77, 2, 0)),  # 5
    Part.LineSegment(App.Vector(77, 2, 0), App.Vector(70.4, 2, 0)),  # 6
    Part.LineSegment(App.Vector(70.4, 2, 0), App.Vector(70.4, 10, 0)),  # 7
    Part.LineSegment(App.Vector(70.4, 10, 0), App.Vector(45.7, 10, 0)),  # 8
    Part.LineSegment(App.Vector(45.7, 10, 0), App.Vector(45.7, 13, 0)),  # 9
    Part.LineSegment(App.Vector(45.7, 13, 0), App.Vector(24.7, 13, 0)),  # 10
    Part.LineSegment(App.Vector(24.7, 13, 0), App.Vector(24.7, 10, 0)),  # 11
    Part.LineSegment(App.Vector(24.7, 10, 0), App.Vector(0, 10, 0)),  # 12
    Part.LineSegment(App.Vector(0, 10, 0), App.Vector(0, 2, 0)),  # 13
    Part.LineSegment(App.Vector(0, 2, 0), App.Vector(-6.6, 2, 0)),  # 14
    Part.LineSegment(App.Vector(-6.6, 2, 0), App.Vector(-6.6, 0, 0)),  # 15
], False)
sketch14.addConstraint([
    Sketcher.Constraint("Coincident", 0, 2, 1, 1),
    Sketcher.Constraint("Coincident", 1, 2, 2, 1),
    Sketcher.Constraint("Coincident", 2, 2, 3, 1),
    Sketcher.Constraint("Coincident", 3, 2, 4, 1),
    Sketcher.Constraint("Coincident", 4, 2, 5, 1),
    Sketcher.Constraint("Coincident", 5, 2, 6, 1),
    Sketcher.Constraint("Coincident", 6, 2, 7, 1),
    Sketcher.Constraint("Coincident", 7, 2, 8, 1),
    Sketcher.Constraint("Coincident", 8, 2, 9, 1),
    Sketcher.Constraint("Coincident", 9, 2, 10, 1),
    Sketcher.Constraint("Coincident", 10, 2, 11, 1),
    Sketcher.Constraint("Coincident", 11, 2, 12, 1),
    Sketcher.Constraint("Coincident", 12, 2, 13, 1),
    Sketcher.Constraint("Coincident", 13, 2, 14, 1),
    Sketcher.Constraint("Coincident", 14, 2, 15, 1),
    Sketcher.Constraint("Coincident", 15, 2, 0, 1),
    Sketcher.Constraint("Horizontal", 0),
    Sketcher.Constraint("Vertical", 1),
    Sketcher.Constraint("Horizontal", 2),
    Sketcher.Constraint("Vertical", 3),
    Sketcher.Constraint("Horizontal", 4),
    Sketcher.Constraint("Vertical", 5),
    Sketcher.Constraint("Horizontal", 6),
    Sketcher.Constraint("Vertical", 7),
    Sketcher.Constraint("Horizontal", 8),
    Sketcher.Constraint("Vertical", 9),
    Sketcher.Constraint("Horizontal", 10),
    Sketcher.Constraint("Vertical", 11),
    Sketcher.Constraint("Horizontal", 12),
    Sketcher.Constraint("Vertical", 13),
    Sketcher.Constraint("Horizontal", 14),
    Sketcher.Constraint("Vertical", 15),
    Sketcher.Constraint("PointOnObject", 0, 2, -1),
    Sketcher.Constraint("PointOnObject", 3, 2, -1),
    Sketcher.Constraint("PointOnObject", 12, 2, -2),
    Sketcher.Constraint("Horizontal", 2, 2, 7, 2),
    Sketcher.Constraint("Horizontal", 8, 2, 11, 2),
    Sketcher.Constraint("Horizontal", 6, 2, 13, 2),
    Sketcher.Constraint("Equal", 0, 4),
    Sketcher.Constraint("Equal", 8, 12),
    Sketcher.Constraint("Equal", 6, 14),
    Sketcher.Constraint("DistanceX", 2, 1, 2, 2, 15.0),
    Sketcher.Constraint("DistanceX", 10, 2, 10, 1, 21.0),
    Sketcher.Constraint("DistanceY", 1, 1, 1, 2, 10.0),
    Sketcher.Constraint("DistanceY", 5, 1, 5, 2, 2.0),
    Sketcher.Constraint("DistanceY", 9, 1, 9, 2, 3.0),
    Sketcher.Constraint("DistanceX", 0, 1, 0, 2, 34.3),
    Sketcher.Constraint("DistanceX", 6, 2, 6, 1, 6.6),
])
pad11 = body.newObject("PartDesign::Pad", "Pad010")
pad11.Profile = sketch14
pad11.Length = 0.5

# Sketch on XZ plane
sketch15 = body.newObject("Sketcher::SketchObject", "Sketch014")
sketch15.AttachmentSupport = (doc.getObject("XZ_Plane"), [""])
sketch15.MapMode = "FlatFace"
sketch15.AttachmentOffset = App.Placement(App.Vector(0, 0, -2), App.Rotation())
sketch15.addGeometry([
    Part.Circle(App.Vector(-3.3, -55, 0), App.Vector(0, 0, 1), 1.8),  # 0
    Part.Circle(App.Vector(73.7, -55, 0), App.Vector(0, 0, 1), 1.8),  # 1
    Part.Circle(App.Vector(-3.3, -6.5, 0), App.Vector(0, 0, 1), 1.8),  # 2
    Part.Circle(App.Vector(73.7, -6.5, 0), App.Vector(0, 0, 1), 1.8),  # 3
    Part.Circle(App.Vector(-3.3, -30.8, 0), App.Vector(0, 0, 1), 1.8),  # 4
    Part.Circle(App.Vector(73.7, -30.8, 0), App.Vector(0, 0, 1), 1.8),  # 5
    Part.LineSegment(App.Vector(-4.8, -17, 0), App.Vector(-4.8, -12, 0)),  # 6
    Part.LineSegment(App.Vector(-4.8, -12, 0), App.Vector(-1.8, -12, 0)),  # 7
    Part.LineSegment(App.Vector(-1.8, -12, 0), App.Vector(-1.8, -17, 0)),  # 8
    Part.LineSegment(App.Vector(-1.8, -17, 0), App.Vector(-4.8, -17, 0)),  # 9
    Part.LineSegment(App.Vector(72.2, -17, 0), App.Vector(72.2, -12, 0)),  # 10
    Part.LineSegment(App.Vector(72.2, -12, 0), App.Vector(75.2, -12, 0)),  # 11
    Part.LineSegment(App.Vector(75.2, -12, 0), App.Vector(75.2, -17, 0)),  # 12
    Part.LineSegment(App.Vector(75.2, -17, 0), App.Vector(72.2, -17, 0)),  # 13
], False)
sketch15.addConstraint([
    Sketcher.Constraint("Coincident", 6, 2, 7, 1),
    Sketcher.Constraint("Coincident", 7, 2, 8, 1),
    Sketcher.Constraint("Coincident", 8, 2, 9, 1),
    Sketcher.Constraint("Coincident", 9, 2, 6, 1),
    Sketcher.Constraint("Coincident", 10, 2, 11, 1),
    Sketcher.Constraint("Coincident", 11, 2, 12, 1),
    Sketcher.Constraint("Coincident", 12, 2, 13, 1),
    Sketcher.Constraint("Coincident", 13, 2, 10, 1),
    Sketcher.Constraint("Vertical", 6),
    Sketcher.Constraint("Horizontal", 7),
    Sketcher.Constraint("Vertical", 8),
    Sketcher.Constraint("Horizontal", 9),
    Sketcher.Constraint("Vertical", 10),
    Sketcher.Constraint("Horizontal", 11),
    Sketcher.Constraint("Vertical", 12),
    Sketcher.Constraint("Horizontal", 13),
    Sketcher.Constraint("Equal", 0, 1),
    Sketcher.Constraint("Equal", 1, 2),
    Sketcher.Constraint("Equal", 2, 3),
    Sketcher.Constraint("Equal", 3, 4),
    Sketcher.Constraint("Equal", 4, 5),
    Sketcher.Constraint("Horizontal", 0, 3, 1, 3),
    Sketcher.Constraint("Horizontal", 2, 3, 3, 3),
    Sketcher.Constraint("Horizontal", 4, 3, 5, 3),
    Sketcher.Constraint("Horizontal", 7, 2, 10, 2),
    Sketcher.Constraint("Horizontal", 9, 2, 12, 2),
    Sketcher.Constraint("Vertical", 0, 3, 2, 3),
    Sketcher.Constraint("Vertical", 1, 3, 3, 3),
    Sketcher.Constraint("Vertical", 2, 3, 4, 3),
    Sketcher.Constraint("Vertical", 3, 3, 5, 3),
    Sketcher.Constraint("Equal", 9, 11),
    Sketcher.Constraint("Diameter", 0, 3.6),
    Sketcher.Constraint("DistanceX", 7, 1, 7, 2, 3.0),
    Sketcher.Constraint("DistanceY", 6, 1, 6, 2, 5.0),
    Sketcher.Constraint("DistanceY", 0, 3, -1, 1, 55.0),
    Sketcher.Constraint("DistanceY", 6, 2, -1, 1, 12.0),
    Sketcher.Constraint("DistanceX", 0, 3, 1, 3, 77.0),
    Sketcher.Constraint("DistanceX", 7, 2, 10, 2, 74.0),
    Sketcher.Constraint("DistanceX", 0, 3, -1, 1, 3.3),
    Sketcher.Constraint("DistanceY", 2, 3, -1, 1, 6.5),
    Sketcher.Constraint("DistanceX", 6, 2, -1, 1, 4.8),
    Sketcher.Constraint("DistanceY", 4, 3, -1, 1, 30.75),
])
pocket4 = body.newObject("PartDesign::Pocket", "Pocket003")
pocket4.Profile = sketch15
pocket4.Length = 3
pocket4.Reversed = True

# Sketch on YZ plane
sketch16 = body.newObject("Sketcher::SketchObject", "Sketch015")
sketch16.AttachmentSupport = (doc.getObject("YZ_Plane"), [""])
sketch16.MapMode = "FlatFace"
sketch16.AttachmentOffset = App.Placement(App.Vector(0, 0, 16), App.Rotation())
sketch16.addGeometry([
    Part.LineSegment(App.Vector(33, -17, 0), App.Vector(30, -17, 0)),
    Part.LineSegment(App.Vector(30, -17, 0), App.Vector(30, -62, 0)),
    Part.LineSegment(App.Vector(30, -62, 0), App.Vector(33, -62, 0)),
    Part.LineSegment(App.Vector(33, -62, 0), App.Vector(33, -17, 0)),
], False)
sketch16.addConstraint([
    Sketcher.Constraint("Coincident", 0, 2, 1, 1),
    Sketcher.Constraint("Coincident", 1, 2, 2, 1),
    Sketcher.Constraint("Coincident", 2, 2, 3, 1),
    Sketcher.Constraint("Coincident", 3, 2, 0, 1),
    Sketcher.Constraint("Horizontal", 0),
    Sketcher.Constraint("Vertical", 1),
    Sketcher.Constraint("Horizontal", 2),
    Sketcher.Constraint("Vertical", 3),
    Sketcher.Constraint("DistanceX", 0, 2, 0, 1, 3.0),
    Sketcher.Constraint("DistanceY", 1, 2, 1, 1, 45.0),
    Sketcher.Constraint("DistanceX", -1, 1, 0, 2, 30.0),
    Sketcher.Constraint("DistanceY", 0, 2, -1, 1, 17.0),
])
pocket5 = body.newObject("PartDesign::Pocket", "Pocket004")
pocket5.Profile = sketch16
pocket5.Type = "ThroughAll"
pocket5.Midplane = True

# Sketch on YZ plane
sketch17 = body.newObject("Sketcher::SketchObject", "Sketch016")
sketch17.AttachmentSupport = (doc.getObject("YZ_Plane"), [""])
sketch17.MapMode = "FlatFace"
sketch17.AttachmentOffset = App.Placement(App.Vector(0, 0, 2), App.Rotation())
sketch17.addGeometry([
    Part.Circle(App.Vector(26, -52, 0), App.Vector(0, 0, 1), 1.8),
    Part.Circle(App.Vector(26, -27, 0), App.Vector(0, 0, 1), 1.8),
], False)
sketch17.addConstraint([
    Sketcher.Constraint("Equal", 0, 1),
    Sketcher.Constraint("Vertical", 0, 3, 1, 3),
    Sketcher.Constraint("Diameter", 0, 3.6),
    Sketcher.Constraint("DistanceX", -1, 1, 0, 3, 26.0),
    Sketcher.Constraint("DistanceY", 0, 3, -1, 1, 52.0),
    Sketcher.Constraint("DistanceY", 1, 3, -1, 1, 27.0),
])
pocket6 = body.newObject("PartDesign::Pocket", "Pocket005")
pocket6.Profile = sketch17
pocket6.Length = 10

# Sketch on YZ plane
sketch18 = body.newObject("Sketcher::SketchObject", "Sketch017")
sketch18.AttachmentSupport = (doc.getObject("YZ_Plane"), [""])
sketch18.MapMode = "FlatFace"
sketch18.AttachmentOffset = App.Placement(App.Vector(0, 0, 70.4), App.Rotation())
sketch18.addGeometry([
    Part.Circle(App.Vector(26, -52, 0), App.Vector(0, 0, 1), 1.8),
    Part.Circle(App.Vector(26, -37, 0), App.Vector(0, 0, 1), 1.8),
], False)
sketch18.addConstraint([
    Sketcher.Constraint("Equal", 0, 1),
    Sketcher.Constraint("Vertical", 0, 3, 1, 3),
    Sketcher.Constraint("Diameter", 0, 3.6),
    Sketcher.Constraint("DistanceX", -1, 1, 0, 3, 26.0),
    Sketcher.Constraint("DistanceY", 0, 3, -1, 1, 52.0),
    Sketcher.Constraint("DistanceY", 1, 3, -1, 1, 37.0),
])
pocket7 = body.newObject("PartDesign::Pocket", "Pocket006")
pocket7.Profile = sketch18
pocket7.Length = 10

# Sketch on YZ plane
sketch19 = body.newObject("Sketcher::SketchObject", "Sketch018")
sketch19.AttachmentSupport = (doc.getObject("YZ_Plane"), [""])
sketch19.MapMode = "FlatFace"
sketch19.AttachmentOffset = App.Placement(App.Vector(0, 0, 24.7), App.Rotation())
sketch19.addGeometry([
    Part.LineSegment(App.Vector(14, -2, 0), App.Vector(10, -2, 0)),
    Part.LineSegment(App.Vector(10, -2, 0), App.Vector(10, 0.5, 0)),
    Part.LineSegment(App.Vector(10, 0.5, 0), App.Vector(14, 0.5, 0)),
    Part.LineSegment(App.Vector(14, 0.5, 0), App.Vector(14, -2, 0)),
], False)
sketch19.addConstraint([
    Sketcher.Constraint("Coincident", 0, 2, 1, 1),
    Sketcher.Constraint("Coincident", 1, 2, 2, 1),
    Sketcher.Constraint("Coincident", 2, 2, 3, 1),
    Sketcher.Constraint("Coincident", 3, 2, 0, 1),
    Sketcher.Constraint("Horizontal", 0),
    Sketcher.Constraint("Vertical", 1),
    Sketcher.Constraint("Horizontal", 2),
    Sketcher.Constraint("Vertical", 3),
    Sketcher.Constraint("DistanceX", 0, 2, 0, 1, 4.0),
    Sketcher.Constraint("DistanceY", 1, 1, 1, 2, 2.5),
    Sketcher.Constraint("DistanceX", -1, 1, 0, 2, 10.0),
    Sketcher.Constraint("DistanceY", 0, 2, -1, 1, 2.0),
])
pad12 = body.newObject("PartDesign::Pad", "Pad011")
pad12.Profile = sketch19
pad12.Type = "TwoLengths"
pad12.Length = 2
pad12.Length2 = 23
pad12.Reversed = True

doc.recompute()
